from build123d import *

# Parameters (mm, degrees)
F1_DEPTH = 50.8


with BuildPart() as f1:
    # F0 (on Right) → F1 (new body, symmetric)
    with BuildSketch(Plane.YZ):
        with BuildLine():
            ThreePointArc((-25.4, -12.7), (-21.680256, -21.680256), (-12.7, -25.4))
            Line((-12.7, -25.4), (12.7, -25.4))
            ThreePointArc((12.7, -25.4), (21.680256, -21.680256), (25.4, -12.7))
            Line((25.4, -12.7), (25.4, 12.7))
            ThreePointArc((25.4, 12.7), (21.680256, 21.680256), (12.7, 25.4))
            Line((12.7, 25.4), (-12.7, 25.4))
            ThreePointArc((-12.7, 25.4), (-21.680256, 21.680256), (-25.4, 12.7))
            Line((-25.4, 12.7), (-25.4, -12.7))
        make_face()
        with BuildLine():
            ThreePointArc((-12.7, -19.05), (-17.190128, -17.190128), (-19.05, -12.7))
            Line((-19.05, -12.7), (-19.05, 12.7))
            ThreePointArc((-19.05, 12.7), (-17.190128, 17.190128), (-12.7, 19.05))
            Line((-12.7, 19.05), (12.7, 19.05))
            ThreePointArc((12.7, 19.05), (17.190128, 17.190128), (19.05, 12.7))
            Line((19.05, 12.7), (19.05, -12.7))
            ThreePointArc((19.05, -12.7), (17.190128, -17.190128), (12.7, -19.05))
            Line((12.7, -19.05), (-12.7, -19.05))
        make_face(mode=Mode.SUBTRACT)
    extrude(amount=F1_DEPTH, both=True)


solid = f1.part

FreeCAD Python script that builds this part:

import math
import FreeCAD as App
import Part
import Sketcher
from FreeCAD import Vector
Q = App.Units.Quantity

doc = App.newDocument("Part")
params = doc.addObject("Spreadsheet::Sheet", "Params")
for row, (alias, value) in enumerate([
    ("sketch1_radius", "0.5 in"),
    ("sketch1_width", "1 in"),
    ("sketch1_radius2", "0.25 in"),
    ("pad1_length", "4 in"),
], start=1):
    params.set(f"A{row}", alias)
    params.set(f"B{row}", "=" + value)
    params.setAlias(f"B{row}", alias)

body = doc.addObject("PartDesign::Body", "Body")

sketch1 = body.newObject("Sketcher::SketchObject", "Sketch")
sketch1.AttachmentSupport = (doc.getObject("YZ_Plane"), [""])
sketch1.MapMode = "FlatFace"
sketch1.addGeometry([
    Part.ArcOfCircle(Part.Circle(Vector(-12.7, -12.7, 0), Vector(0, 0, 1), 12.7), math.radians(-179.999998), math.radians(-90.000002)),
    Part.LineSegment(Vector(-12.7, -25.4, 0), Vector(12.7, -25.4, 0)),
    Part.ArcOfCircle(Part.Circle(Vector(12.7, -12.7, 0), Vector(0, 0, 1), 12.7), math.radians(-89.999998), math.radians(-0.000002)),
    Part.LineSegment(Vector(25.4, -12.7, 0), Vector(25.4, 12.7, 0)),
    Part.ArcOfCircle(Part.Circle(Vector(12.7, 12.7, 0), Vector(0, 0, 1), 12.7), math.radians(0.000002), math.radians(89.999998)),
    Part.LineSegment(Vector(12.7, 25.4, 0), Vector(-12.7, 25.4, 0)),
    Part.ArcOfCircle(Part.Circle(Vector(-12.7, 12.7, 0), Vector(0, 0, 1), 12.7), math.radians(90.000002), math.radians(179.999998)),
    Part.LineSegment(Vector(-25.4, 12.7, 0), Vector(-25.4, -12.7, 0)),
    Part.LineSegment(Vector(12.7, -19.05, 0), Vector(-12.7, -19.05, 0)),
    Part.ArcOfCircle(Part.Circle(Vector(-12.7, -12.7, 0), Vector(0, 0, 1), 6.35), math.radians(-179.999998), math.radians(-90.000002)),
    Part.LineSegment(Vector(-19.05, -12.7, 0), Vector(-19.05, 12.7, 0)),
    Part.ArcOfCircle(Part.Circle(Vector(-12.7, 12.7, 0), Vector(0, 0, 1), 6.35), math.radians(90.000002), math.radians(179.999998)),
    Part.LineSegment(Vector(-12.7, 19.05, 0), Vector(12.7, 19.05, 0)),
    Part.ArcOfCircle(Part.Circle(Vector(12.7, 12.7, 0), Vector(0, 0, 1), 6.35), math.radians(0.000002), math.radians(89.999998)),
    Part.LineSegment(Vector(19.05, 12.7, 0), Vector(19.05, -12.7, 0)),
    Part.ArcOfCircle(Part.Circle(Vector(12.7, -12.7, 0), Vector(0, 0, 1), 6.35), math.radians(-89.999998), math.radians(-0.000002)),
], False)
sketch1.addConstraint([
    Sketcher.Constraint("Tangent", 0, 2, 1, 1),
    Sketcher.Constraint("Tangent", 1, 2, 2, 1),
    Sketcher.Constraint("Tangent", 2, 2, 3, 1),
    Sketcher.Constraint("Tangent", 3, 2, 4, 1),
    Sketcher.Constraint("Tangent", 4, 2, 5, 1),
    Sketcher.Constraint("Tangent", 5, 2, 6, 1),
    Sketcher.Constraint("Tangent", 6, 2, 7, 1),
    Sketcher.Constraint("Tangent", 7, 2, 0, 1),
    Sketcher.Constraint("Tangent", 8, 2, 9, 2),
    Sketcher.Constraint("Tangent", 9, 1, 10, 1),
    Sketcher.Constraint("Tangent", 10, 2, 11, 2),
    Sketcher.Constraint("Tangent", 11, 1, 12, 1),
    Sketcher.Constraint("Tangent", 12, 2, 13, 2),
    Sketcher.Constraint("Tangent", 13, 1, 14, 1),
    Sketcher.Constraint("Tangent", 14, 2, 15, 2),
    Sketcher.Constraint("Tangent", 15, 1, 8, 1),
    Sketcher.Constraint("Horizontal", 1),
    Sketcher.Constraint("Vertical", 3),
    Sketcher.Constraint("Horizontal", 5),
    Sketcher.Constraint("Vertical", 7),
    Sketcher.Constraint("Horizontal", 8),
    Sketcher.Constraint("Vertical", 10),
    Sketcher.Constraint("Horizontal", 12),
    Sketcher.Constraint("Vertical", 14),
    Sketcher.Constraint("Coincident", 9, 3, 0, 3),
    Sketcher.Constraint("Coincident", 11, 3, 6, 3),
    Sketcher.Constraint("Coincident", 13, 3, 4, 3),
    Sketcher.Constraint("Equal", 0, 2),
    Sketcher.Constraint("Equal", 2, 4),
    Sketcher.Constraint("Equal", 4, 6),
    Sketcher.Constraint("Equal", 13, 15),
    Sketcher.Constraint("Symmetric", 0, 3, 4, 3, -1, 1),
    Sketcher.Constraint("Equal", 12, 3),
    Sketcher.Constraint("Radius", 0, Q("0.5 in")),
    Sketcher.Constraint("DistanceX", 1, 1, 1, 2, Q("1 in")),
    Sketcher.Constraint("Radius", 9, Q("0.25 in")),
])
sketch1.setExpression("Constraints[33]", "Params.sketch1_radius")
sketch1.setExpression("Constraints[34]", "Params.sketch1_width")
sketch1.setExpression("Constraints[35]", "Params.sketch1_radius2")
pad1 = body.newObject("PartDesign::Pad", "Pad")
pad1.Profile = sketch1
pad1.setExpression("Length", "Params.pad1_length")
pad1.Midplane = True

doc.recompute()
